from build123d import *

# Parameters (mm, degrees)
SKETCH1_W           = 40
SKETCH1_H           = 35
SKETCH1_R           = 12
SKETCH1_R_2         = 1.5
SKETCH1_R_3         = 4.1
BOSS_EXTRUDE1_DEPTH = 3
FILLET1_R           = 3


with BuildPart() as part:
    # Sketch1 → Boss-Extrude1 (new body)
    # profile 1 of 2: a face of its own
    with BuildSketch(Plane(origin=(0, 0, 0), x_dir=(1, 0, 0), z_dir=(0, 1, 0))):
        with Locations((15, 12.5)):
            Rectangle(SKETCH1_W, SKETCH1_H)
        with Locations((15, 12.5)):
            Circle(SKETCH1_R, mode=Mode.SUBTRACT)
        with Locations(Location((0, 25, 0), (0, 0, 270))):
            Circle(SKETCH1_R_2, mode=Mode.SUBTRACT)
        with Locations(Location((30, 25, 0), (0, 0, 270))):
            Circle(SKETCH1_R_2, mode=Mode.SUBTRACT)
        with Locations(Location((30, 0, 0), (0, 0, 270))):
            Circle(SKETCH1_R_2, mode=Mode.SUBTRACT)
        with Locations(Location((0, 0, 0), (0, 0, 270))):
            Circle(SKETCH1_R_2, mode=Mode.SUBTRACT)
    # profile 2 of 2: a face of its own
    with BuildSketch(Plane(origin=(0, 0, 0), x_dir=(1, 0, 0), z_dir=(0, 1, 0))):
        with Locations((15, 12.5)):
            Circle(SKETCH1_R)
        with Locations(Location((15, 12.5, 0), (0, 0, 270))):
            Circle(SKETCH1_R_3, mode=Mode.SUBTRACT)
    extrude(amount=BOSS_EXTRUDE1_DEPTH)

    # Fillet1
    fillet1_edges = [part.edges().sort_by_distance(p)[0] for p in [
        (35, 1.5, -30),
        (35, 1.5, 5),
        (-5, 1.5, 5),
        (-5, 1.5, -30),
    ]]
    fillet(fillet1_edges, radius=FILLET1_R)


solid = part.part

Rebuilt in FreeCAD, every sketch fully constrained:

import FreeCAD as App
import Part
import Sketcher

V = App.Vector
Q = App.Units.Quantity


def edges_at(feature, points):
    """Names of the edges that pass closest to the given points."""
    edges = feature.Shape.Edges
    near = lambda p: min(range(len(edges)), key=lambda i: edges[i].distToShape(Part.Vertex(*p))[0])
    return sorted({f"Edge{near(p) + 1}" for p in points})

doc = App.newDocument("Part")
params = doc.addObject("Spreadsheet::Sheet", "Params")
for row, (alias, value) in enumerate([
    ("sketch1_diameter", "3 mm"),
    ("sketch1_diameter2", "8.2 mm"),
    ("sketch1_width", "40 mm"),
    ("sketch1_height", "35 mm"),
    ("pad1_length", "3 mm"),
    ("fillet_radius", "3 mm"),
], start=1):
    params.set(f"A{row}", alias)
    params.set(f"B{row}", "=" + value)
    params.setAlias(f"B{row}", alias)

body = doc.addObject("PartDesign::Body", "Body")

# Sketch on XZ plane
sketch1 = doc.addObject("Sketcher::SketchObject", "Sketch")
body.addObject(sketch1)
sketch1.AttachmentSupport = (doc.XZ_Plane, [""])
sketch1.MapMode = "FlatFace"
sketch1.addGeometry([
    Part.LineSegment(V(-5, -30, 0), V(-5, 5, 0)),  # 0
    Part.LineSegment(V(-5, 5, 0), V(35, 5, 0)),  # 1
    Part.LineSegment(V(35, 5, 0), V(35, -30, 0)),  # 2
    Part.LineSegment(V(35, -30, 0), V(-5, -30, 0)),  # 3
    Part.Circle(V(0, 0, 0), V(0, 0, 1), 1.5),  # 4
    Part.Circle(V(30, 0, 0), V(0, 0, 1), 1.5),  # 5
    Part.Circle(V(0, -25, 0), V(0, 0, 1), 1.5),  # 6
    Part.Circle(V(30, -25, 0), V(0, 0, 1), 1.5),  # 7
    Part.Circle(V(15, -12.5, 0), V(0, 0, 1), 4.1),  # 8
], False)
sketch1.addConstraint([
    Sketcher.Constraint("Coincident", 0, 2, 1, 1),
    Sketcher.Constraint("Coincident", 1, 2, 2, 1),
    Sketcher.Constraint("Coincident", 2, 2, 3, 1),
    Sketcher.Constraint("Coincident", 3, 2, 0, 1),
    Sketcher.Constraint("Vertical", 0),
    Sketcher.Constraint("Horizontal", 1),
    Sketcher.Constraint("Vertical", 2),
    Sketcher.Constraint("Horizontal", 3),
    Sketcher.Constraint("Coincident", 4, 3, -1, 1),
    Sketcher.Constraint("Equal", 4, 5),
    Sketcher.Constraint("Equal", 5, 6),
    Sketcher.Constraint("Equal", 6, 7),
    Sketcher.Constraint("PointOnObject", 5, 3, -1),
    Sketcher.Constraint("PointOnObject", 6, 3, -2),
    Sketcher.Constraint("Horizontal", 6, 3, 7, 3),
    Sketcher.Constraint("Vertical", 5, 3, 7, 3),
    Sketcher.Constraint("Diameter", 4, Q("3 mm")),
    Sketcher.Constraint("Diameter", 8, Q("8.2 mm")),
    Sketcher.Constraint("DistanceX", 1, 1, 1, 2, Q("40 mm")),
    Sketcher.Constraint("DistanceY", 0, 1, 0, 2, Q("35 mm")),
    Sketcher.Constraint("DistanceX", -1, 1, 5, 3, Q("30 mm")),
    Sketcher.Constraint("DistanceY", 6, 3, -1, 1, Q("25 mm")),
    Sketcher.Constraint("DistanceX", -1, 1, 8, 3, Q("15 mm")),
    Sketcher.Constraint("DistanceX", 0, 2, -1, 1, Q("5 mm")),
    Sketcher.Constraint("DistanceY", -1, 1, 0, 2, Q("5 mm")),
    Sketcher.Constraint("DistanceY", 8, 3, -1, 1, Q("12.5 mm")),
])
sketch1.setExpression("Constraints[16]", "Params.sketch1_diameter")
sketch1.setExpression("Constraints[17]", "Params.sketch1_diameter2")
sketch1.setExpression("Constraints[18]", "Params.sketch1_width")
sketch1.setExpression("Constraints[19]", "Params.sketch1_height")
pad1 = doc.addObject("PartDesign::Pad", "Pad")
body.addObject(pad1)
pad1.Profile = sketch1
pad1.setExpression("Length", "Params.pad1_length")
pad1.Reversed = True
doc.recompute()

fillet = doc.addObject("PartDesign::Fillet", "Fillet")
body.addObject(fillet)
fillet.Base = (pad1, edges_at(pad1, [
    (35, 1.5, -30),
    (35, 1.5, 5),
    (-5, 1.5, 5),
    (-5, 1.5, -30),
]))
fillet.setExpression("Radius", "Params.fillet_radius")

doc.recompute()
